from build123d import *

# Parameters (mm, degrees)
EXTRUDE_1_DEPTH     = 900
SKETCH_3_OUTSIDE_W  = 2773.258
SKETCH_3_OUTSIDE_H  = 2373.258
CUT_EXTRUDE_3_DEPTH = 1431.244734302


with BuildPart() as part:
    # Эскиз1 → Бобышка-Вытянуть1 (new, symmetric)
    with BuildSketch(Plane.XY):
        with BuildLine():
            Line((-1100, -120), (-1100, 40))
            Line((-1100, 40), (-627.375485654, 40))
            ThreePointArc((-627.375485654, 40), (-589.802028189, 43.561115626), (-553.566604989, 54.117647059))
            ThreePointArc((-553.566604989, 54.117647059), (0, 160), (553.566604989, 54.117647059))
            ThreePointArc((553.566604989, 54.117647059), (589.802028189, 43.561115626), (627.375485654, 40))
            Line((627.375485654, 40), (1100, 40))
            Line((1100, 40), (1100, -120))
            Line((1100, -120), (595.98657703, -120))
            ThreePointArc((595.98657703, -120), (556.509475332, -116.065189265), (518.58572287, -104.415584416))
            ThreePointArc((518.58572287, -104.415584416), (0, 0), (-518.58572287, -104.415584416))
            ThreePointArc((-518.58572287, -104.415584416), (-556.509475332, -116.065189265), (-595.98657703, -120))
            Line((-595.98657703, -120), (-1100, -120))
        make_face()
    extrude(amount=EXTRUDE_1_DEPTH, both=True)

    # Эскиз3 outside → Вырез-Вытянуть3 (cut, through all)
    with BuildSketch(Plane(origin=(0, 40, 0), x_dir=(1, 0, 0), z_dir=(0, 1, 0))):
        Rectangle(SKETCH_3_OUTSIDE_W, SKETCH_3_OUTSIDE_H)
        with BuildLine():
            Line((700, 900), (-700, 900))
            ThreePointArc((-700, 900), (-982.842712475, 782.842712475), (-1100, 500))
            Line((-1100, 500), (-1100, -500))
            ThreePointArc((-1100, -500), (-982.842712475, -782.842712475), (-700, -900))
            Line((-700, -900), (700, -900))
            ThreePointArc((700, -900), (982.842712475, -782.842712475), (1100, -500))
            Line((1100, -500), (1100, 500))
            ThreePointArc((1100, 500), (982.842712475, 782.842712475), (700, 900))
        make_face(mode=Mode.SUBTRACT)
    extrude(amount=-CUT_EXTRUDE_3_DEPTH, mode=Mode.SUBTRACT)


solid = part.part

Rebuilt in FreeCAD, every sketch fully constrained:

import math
import FreeCAD as App
import Part
import Sketcher


def add_polygon(sketch, points):
    """Adds a closed chain of lines whose ends are joined by coincident constraints."""
    first, n = sketch.GeometryCount, len(points)
    for a, b in zip(points, points[1:] + points[:1]):
        sketch.addGeometry(Part.LineSegment(App.Vector(*a, 0), App.Vector(*b, 0)), False)
    for i in range(n):
        sketch.addConstraint(Sketcher.Constraint("Coincident", first + i, 2, first + (i + 1) % n, 1))

doc = App.newDocument("Part")
body = doc.addObject("PartDesign::Body", "Body")

# Sketch on XY plane
sketch1 = body.newObject("Sketcher::SketchObject", "Sketch")
sketch1.AttachmentSupport = (doc.getObject("XY_Plane"), [""])
sketch1.MapMode = "FlatFace"
sketch1.addGeometry([
    Part.LineSegment(App.Vector(-1100, 40, 0), App.Vector(-1100, -120, 0)),  # 0
    Part.LineSegment(App.Vector(-1100, -120, 0), App.Vector(-596, -120, 0)),  # 1
    Part.ArcOfCircle(Part.Circle(App.Vector(-596, 80, 0), App.Vector(0, 0, 1), 200), math.radians(-90), math.radians(-67)),  # 2
    Part.ArcOfCircle(Part.Circle(App.Vector(0, -1340, 0), App.Vector(0, 0, 1), 1340), math.radians(67), math.radians(113)),  # 3
    Part.ArcOfCircle(Part.Circle(App.Vector(596, 80, 0), App.Vector(0, 0, 1), 200), math.radians(-113), math.radians(-90)),  # 4
    Part.LineSegment(App.Vector(596, -120, 0), App.Vector(1100, -120, 0)),  # 5
    Part.LineSegment(App.Vector(1100, -120, 0), App.Vector(1100, 40, 0)),  # 6
    Part.LineSegment(App.Vector(1100, 40, 0), App.Vector(627, 40, 0)),  # 7
    Part.ArcOfCircle(Part.Circle(App.Vector(627, 240, 0), App.Vector(0, 0, 1), 200), math.radians(-112), math.radians(-90)),  # 8
    Part.ArcOfCircle(Part.Circle(App.Vector(0, -1340, 0), App.Vector(0, 0, 1), 1500), math.radians(68), math.radians(112)),  # 9
    Part.ArcOfCircle(Part.Circle(App.Vector(-627, 240, 0), App.Vector(0, 0, 1), 200), math.radians(-90), math.radians(-68)),  # 10
    Part.LineSegment(App.Vector(-627, 40, 0), App.Vector(-1100, 40, 0)),  # 11
], False)
sketch1.addConstraint([
    Sketcher.Constraint("Coincident", 0, 2, 1, 1),
    Sketcher.Constraint("Tangent", 1, 2, 2, 1),
    Sketcher.Constraint("Tangent", 2, 2, 3, 2),
    Sketcher.Constraint("Tangent", 3, 1, 4, 1),
    Sketcher.Constraint("Tangent", 4, 2, 5, 1),
    Sketcher.Constraint("Coincident", 5, 2, 6, 1),
    Sketcher.Constraint("Coincident", 6, 2, 7, 1),
    Sketcher.Constraint("Tangent", 7, 2, 8, 2),
    Sketcher.Constraint("Tangent", 8, 1, 9, 1),
    Sketcher.Constraint("Tangent", 9, 2, 10, 2),
    Sketcher.Constraint("Tangent", 10, 1, 11, 1),
    Sketcher.Constraint("Coincident", 11, 2, 0, 1),
    Sketcher.Constraint("Vertical", 0),
    Sketcher.Constraint("Horizontal", 1),
    Sketcher.Constraint("Horizontal", 5),
    Sketcher.Constraint("Vertical", 6),
    Sketcher.Constraint("Horizontal", 7),
    Sketcher.Constraint("Horizontal", 11),
    Sketcher.Constraint("Coincident", 9, 3, 3, 3),
    Sketcher.Constraint("Equal", 2, 4),
    Sketcher.Constraint("Equal", 4, 8),
    Sketcher.Constraint("Equal", 8, 10),
    Sketcher.Constraint("Symmetric", 2, 3, 4, 3, -2),
    Sketcher.Constraint("Symmetric", 6, 2, 11, 2, -2),
    Sketcher.Constraint("Radius", 2, 200.0),
    Sketcher.Constraint("Radius", 3, 1340.0),
    Sketcher.Constraint("Radius", 9, 1500.0),
    Sketcher.Constraint("DistanceY", 0, 2, 0, 1, 160.0),
    Sketcher.Constraint("DistanceY", -1, 1, 2, 3, 80.0),
    Sketcher.Constraint("DistanceY", 3, 3, -1, 1, 1340.0),
    Sketcher.Constraint("DistanceX", 0, 2, -1, 1, 1100.0),
])
pad1 = body.newObject("PartDesign::Pad", "Pad")
pad1.Profile = sketch1
pad1.Length = 1800
pad1.Midplane = True

# Sketch on XZ plane
sketch2 = body.newObject("Sketcher::SketchObject", "Sketch001")
sketch2.AttachmentSupport = (doc.getObject("XZ_Plane"), [""])
sketch2.MapMode = "FlatFace"
sketch2.AttachmentOffset = App.Placement(App.Vector(0, 0, -40), App.Rotation())
add_polygon(sketch2, [(-1387, -1187), (-1387, 1187), (1387, 1187), (1387, -1187)])  # lines 0-3
sketch2.addGeometry(Part.LineSegment(App.Vector(-700, -900, 0), App.Vector(700, -900, 0)), False)  # 4
sketch2.addGeometry(Part.ArcOfCircle(Part.Circle(App.Vector(700, -500, 0), App.Vector(0, 0, 1), 400), math.radians(-90), math.radians(0)), False)  # 5
sketch2.addGeometry(Part.LineSegment(App.Vector(1100, -500, 0), App.Vector(1100, 500, 0)), False)  # 6
sketch2.addGeometry(Part.ArcOfCircle(Part.Circle(App.Vector(700, 500, 0), App.Vector(0, 0, 1), 400), math.radians(0), math.radians(90)), False)  # 7
sketch2.addGeometry(Part.LineSegment(App.Vector(700, 900, 0), App.Vector(-700, 900, 0)), False)  # 8
sketch2.addGeometry(Part.ArcOfCircle(Part.Circle(App.Vector(-700, 500, 0), App.Vector(0, 0, 1), 400), math.radians(90), math.radians(180)), False)  # 9
sketch2.addGeometry(Part.LineSegment(App.Vector(-1100, 500, 0), App.Vector(-1100, -500, 0)), False)  # 10
sketch2.addGeometry(Part.ArcOfCircle(Part.Circle(App.Vector(-700, -500, 0), App.Vector(0, 0, 1), 400), math.radians(180), math.radians(270)), False)  # 11
sketch2.addConstraint([
    Sketcher.Constraint("Tangent", 4, 2, 5, 1),
    Sketcher.Constraint("Tangent", 5, 2, 6, 1),
    Sketcher.Constraint("Tangent", 6, 2, 7, 1),
    Sketcher.Constraint("Tangent", 7, 2, 8, 1),
    Sketcher.Constraint("Tangent", 8, 2, 9, 1),
    Sketcher.Constraint("Tangent", 9, 2, 10, 1),
    Sketcher.Constraint("Tangent", 10, 2, 11, 1),
    Sketcher.Constraint("Tangent", 11, 2, 4, 1),
    Sketcher.Constraint("Vertical", 0),
    Sketcher.Constraint("Horizontal", 1),
    Sketcher.Constraint("Vertical", 2),
    Sketcher.Constraint("Horizontal", 3),
    Sketcher.Constraint("Horizontal", 4),
    Sketcher.Constraint("Vertical", 6),
    Sketcher.Constraint("Horizontal", 8),
    Sketcher.Constraint("Vertical", 10),
    Sketcher.Constraint("Equal", 5, 7),
    Sketcher.Constraint("Equal", 7, 9),
    Sketcher.Constraint("Equal", 9, 11),
    Sketcher.Constraint("Symmetric", 5, 3, 9, 3, -1, 1),
    Sketcher.Constraint("Symmetric", 0, 2, 2, 2, -1, 1),
    Sketcher.Constraint("Radius", 5, 400.0),
    Sketcher.Constraint("DistanceX", 4, 1, 4, 2, 1400.0),
    Sketcher.Constraint("DistanceY", 6, 1, 6, 2, 1000.0),
    Sketcher.Constraint("DistanceX", 1, 1, 1, 2, 2773.258),
    Sketcher.Constraint("DistanceY", 0, 1, 0, 2, 2373.258),
])
pocket1 = body.newObject("PartDesign::Pocket", "Pocket")
pocket1.Profile = sketch2
pocket1.Type = "ThroughAll"
pocket1.Reversed = True

doc.recompute()
